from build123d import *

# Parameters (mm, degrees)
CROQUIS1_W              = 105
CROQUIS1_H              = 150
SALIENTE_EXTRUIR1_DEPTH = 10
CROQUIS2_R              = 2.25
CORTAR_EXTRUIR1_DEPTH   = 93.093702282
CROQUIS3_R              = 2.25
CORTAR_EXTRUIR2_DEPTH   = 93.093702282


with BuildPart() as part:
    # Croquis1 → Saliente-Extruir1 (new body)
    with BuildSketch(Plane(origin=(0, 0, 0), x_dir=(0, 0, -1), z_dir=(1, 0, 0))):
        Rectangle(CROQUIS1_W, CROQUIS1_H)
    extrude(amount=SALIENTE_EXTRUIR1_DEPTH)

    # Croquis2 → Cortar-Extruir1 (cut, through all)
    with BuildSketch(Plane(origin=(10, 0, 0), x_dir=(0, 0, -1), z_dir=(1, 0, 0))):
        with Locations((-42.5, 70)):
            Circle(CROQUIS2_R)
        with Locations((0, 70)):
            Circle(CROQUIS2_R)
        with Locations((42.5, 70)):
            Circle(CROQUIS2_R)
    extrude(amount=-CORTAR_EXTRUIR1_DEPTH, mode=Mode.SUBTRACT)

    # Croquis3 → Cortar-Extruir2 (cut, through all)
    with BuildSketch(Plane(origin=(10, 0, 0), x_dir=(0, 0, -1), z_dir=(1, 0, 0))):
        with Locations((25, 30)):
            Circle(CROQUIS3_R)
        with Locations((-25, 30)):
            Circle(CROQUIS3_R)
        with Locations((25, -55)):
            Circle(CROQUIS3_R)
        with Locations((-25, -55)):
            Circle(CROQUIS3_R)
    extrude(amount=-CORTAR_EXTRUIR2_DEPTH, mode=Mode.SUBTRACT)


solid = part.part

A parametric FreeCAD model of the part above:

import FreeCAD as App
import Part
import Sketcher
from FreeCAD import Vector
Q = App.Units.Quantity


def add_polygon(sketch, points):
    """Adds a closed chain of lines whose ends are joined by coincident constraints."""
    first, n = sketch.GeometryCount, len(points)
    for a, b in zip(points, points[1:] + points[:1]):
        sketch.addGeometry(Part.LineSegment(App.Vector(*a, 0), App.Vector(*b, 0)), False)
    for i in range(n):
        sketch.addConstraint(Sketcher.Constraint("Coincident", first + i, 2, first + (i + 1) % n, 1))

doc = App.newDocument("Part")
body = doc.addObject("PartDesign::Body", "Body")

sketch1 = body.newObject("Sketcher::SketchObject", "Sketch")
sketch1.AttachmentSupport = (doc.getObject("YZ_Plane"), [""])
sketch1.MapMode = "FlatFace"
add_polygon(sketch1, [(75, 52.5), (-75, 52.5), (-75, -52.5), (75, -52.5)])
sketch1.addConstraint(Sketcher.Constraint("Horizontal", 0))
sketch1.addConstraint(Sketcher.Constraint("Vertical", 1))
sketch1.addConstraint(Sketcher.Constraint("Horizontal", 2))
sketch1.addConstraint(Sketcher.Constraint("Vertical", 3))
sketch1.addConstraint(Sketcher.Constraint("Symmetric", 0, 2, 2, 2, -1, 1))
sketch1.addConstraint(Sketcher.Constraint("DistanceX", 0, 2, 0, 1, Q("150 mm")))
sketch1.addConstraint(Sketcher.Constraint("DistanceY", 1, 2, 1, 1, Q("105 mm")))
pad1 = body.newObject("PartDesign::Pad", "Pad")
pad1.Profile = sketch1
pad1.Length = 10

sketch2 = body.newObject("Sketcher::SketchObject", "Sketch001")
sketch2.AttachmentSupport = (doc.getObject("YZ_Plane"), [""])
sketch2.MapMode = "FlatFace"
sketch2.AttachmentOffset = App.Placement(Vector(0, 0, 10), App.Rotation())
sketch2.addGeometry(Part.Circle(Vector(70, 42.5, 0), Vector(0, 0, 1), 2.25), False)
sketch2.addGeometry(Part.Circle(Vector(70, 0, 0), Vector(0, 0, 1), 2.25), False)
sketch2.addGeometry(Part.Circle(Vector(70, -42.5, 0), Vector(0, 0, 1), 2.25), False)
sketch2.addConstraint(Sketcher.Constraint("Equal", 0, 1))
sketch2.addConstraint(Sketcher.Constraint("Equal", 1, 2))
sketch2.addConstraint(Sketcher.Constraint("Symmetric", 0, 3, 2, 3, -1))
sketch2.addConstraint(Sketcher.Constraint("PointOnObject", 1, 3, -1))
sketch2.addConstraint(Sketcher.Constraint("Vertical", 0, 3, 1, 3))
sketch2.addConstraint(Sketcher.Constraint("Diameter", 0, Q("4.5 mm")))
sketch2.addConstraint(Sketcher.Constraint("DistanceX", -1, 1, 0, 3, Q("70 mm")))
sketch2.addConstraint(Sketcher.Constraint("DistanceY", 2, 3, 0, 3, Q("85 mm")))
pocket1 = body.newObject("PartDesign::Pocket", "Pocket")
pocket1.Profile = sketch2
pocket1.Type = "ThroughAll"

sketch3 = body.newObject("Sketcher::SketchObject", "Sketch002")
sketch3.AttachmentSupport = (doc.getObject("YZ_Plane"), [""])
sketch3.MapMode = "FlatFace"
sketch3.AttachmentOffset = App.Placement(Vector(0, 0, 10), App.Rotation())
sketch3.addGeometry(Part.Circle(Vector(30, -25, 0), Vector(0, 0, 1), 2.25), False)
sketch3.addGeometry(Part.Circle(Vector(30, 25, 0), Vector(0, 0, 1), 2.25), False)
sketch3.addGeometry(Part.Circle(Vector(-55, -25, 0), Vector(0, 0, 1), 2.25), False)
sketch3.addGeometry(Part.Circle(Vector(-55, 25, 0), Vector(0, 0, 1), 2.25), False)
sketch3.addConstraint(Sketcher.Constraint("Equal", 0, 1))
sketch3.addConstraint(Sketcher.Constraint("Equal", 1, 2))
sketch3.addConstraint(Sketcher.Constraint("Equal", 2, 3))
sketch3.addConstraint(Sketcher.Constraint("Symmetric", 0, 3, 1, 3, -1))
sketch3.addConstraint(Sketcher.Constraint("Symmetric", 2, 3, 3, 3, -1))
sketch3.addConstraint(Sketcher.Constraint("Horizontal", 0, 3, 2, 3))
sketch3.addConstraint(Sketcher.Constraint("Diameter", 0, Q("4.5 mm")))
sketch3.addConstraint(Sketcher.Constraint("DistanceX", -1, 1, 0, 3, Q("30 mm")))
sketch3.addConstraint(Sketcher.Constraint("DistanceY", 0, 3, -1, 1, Q("25 mm")))
sketch3.addConstraint(Sketcher.Constraint("DistanceX", 2, 3, -1, 1, Q("55 mm")))
pocket2 = body.newObject("PartDesign::Pocket", "Pocket001")
pocket2.Profile = sketch3
pocket2.Type = "ThroughAll"

doc.recompute()
